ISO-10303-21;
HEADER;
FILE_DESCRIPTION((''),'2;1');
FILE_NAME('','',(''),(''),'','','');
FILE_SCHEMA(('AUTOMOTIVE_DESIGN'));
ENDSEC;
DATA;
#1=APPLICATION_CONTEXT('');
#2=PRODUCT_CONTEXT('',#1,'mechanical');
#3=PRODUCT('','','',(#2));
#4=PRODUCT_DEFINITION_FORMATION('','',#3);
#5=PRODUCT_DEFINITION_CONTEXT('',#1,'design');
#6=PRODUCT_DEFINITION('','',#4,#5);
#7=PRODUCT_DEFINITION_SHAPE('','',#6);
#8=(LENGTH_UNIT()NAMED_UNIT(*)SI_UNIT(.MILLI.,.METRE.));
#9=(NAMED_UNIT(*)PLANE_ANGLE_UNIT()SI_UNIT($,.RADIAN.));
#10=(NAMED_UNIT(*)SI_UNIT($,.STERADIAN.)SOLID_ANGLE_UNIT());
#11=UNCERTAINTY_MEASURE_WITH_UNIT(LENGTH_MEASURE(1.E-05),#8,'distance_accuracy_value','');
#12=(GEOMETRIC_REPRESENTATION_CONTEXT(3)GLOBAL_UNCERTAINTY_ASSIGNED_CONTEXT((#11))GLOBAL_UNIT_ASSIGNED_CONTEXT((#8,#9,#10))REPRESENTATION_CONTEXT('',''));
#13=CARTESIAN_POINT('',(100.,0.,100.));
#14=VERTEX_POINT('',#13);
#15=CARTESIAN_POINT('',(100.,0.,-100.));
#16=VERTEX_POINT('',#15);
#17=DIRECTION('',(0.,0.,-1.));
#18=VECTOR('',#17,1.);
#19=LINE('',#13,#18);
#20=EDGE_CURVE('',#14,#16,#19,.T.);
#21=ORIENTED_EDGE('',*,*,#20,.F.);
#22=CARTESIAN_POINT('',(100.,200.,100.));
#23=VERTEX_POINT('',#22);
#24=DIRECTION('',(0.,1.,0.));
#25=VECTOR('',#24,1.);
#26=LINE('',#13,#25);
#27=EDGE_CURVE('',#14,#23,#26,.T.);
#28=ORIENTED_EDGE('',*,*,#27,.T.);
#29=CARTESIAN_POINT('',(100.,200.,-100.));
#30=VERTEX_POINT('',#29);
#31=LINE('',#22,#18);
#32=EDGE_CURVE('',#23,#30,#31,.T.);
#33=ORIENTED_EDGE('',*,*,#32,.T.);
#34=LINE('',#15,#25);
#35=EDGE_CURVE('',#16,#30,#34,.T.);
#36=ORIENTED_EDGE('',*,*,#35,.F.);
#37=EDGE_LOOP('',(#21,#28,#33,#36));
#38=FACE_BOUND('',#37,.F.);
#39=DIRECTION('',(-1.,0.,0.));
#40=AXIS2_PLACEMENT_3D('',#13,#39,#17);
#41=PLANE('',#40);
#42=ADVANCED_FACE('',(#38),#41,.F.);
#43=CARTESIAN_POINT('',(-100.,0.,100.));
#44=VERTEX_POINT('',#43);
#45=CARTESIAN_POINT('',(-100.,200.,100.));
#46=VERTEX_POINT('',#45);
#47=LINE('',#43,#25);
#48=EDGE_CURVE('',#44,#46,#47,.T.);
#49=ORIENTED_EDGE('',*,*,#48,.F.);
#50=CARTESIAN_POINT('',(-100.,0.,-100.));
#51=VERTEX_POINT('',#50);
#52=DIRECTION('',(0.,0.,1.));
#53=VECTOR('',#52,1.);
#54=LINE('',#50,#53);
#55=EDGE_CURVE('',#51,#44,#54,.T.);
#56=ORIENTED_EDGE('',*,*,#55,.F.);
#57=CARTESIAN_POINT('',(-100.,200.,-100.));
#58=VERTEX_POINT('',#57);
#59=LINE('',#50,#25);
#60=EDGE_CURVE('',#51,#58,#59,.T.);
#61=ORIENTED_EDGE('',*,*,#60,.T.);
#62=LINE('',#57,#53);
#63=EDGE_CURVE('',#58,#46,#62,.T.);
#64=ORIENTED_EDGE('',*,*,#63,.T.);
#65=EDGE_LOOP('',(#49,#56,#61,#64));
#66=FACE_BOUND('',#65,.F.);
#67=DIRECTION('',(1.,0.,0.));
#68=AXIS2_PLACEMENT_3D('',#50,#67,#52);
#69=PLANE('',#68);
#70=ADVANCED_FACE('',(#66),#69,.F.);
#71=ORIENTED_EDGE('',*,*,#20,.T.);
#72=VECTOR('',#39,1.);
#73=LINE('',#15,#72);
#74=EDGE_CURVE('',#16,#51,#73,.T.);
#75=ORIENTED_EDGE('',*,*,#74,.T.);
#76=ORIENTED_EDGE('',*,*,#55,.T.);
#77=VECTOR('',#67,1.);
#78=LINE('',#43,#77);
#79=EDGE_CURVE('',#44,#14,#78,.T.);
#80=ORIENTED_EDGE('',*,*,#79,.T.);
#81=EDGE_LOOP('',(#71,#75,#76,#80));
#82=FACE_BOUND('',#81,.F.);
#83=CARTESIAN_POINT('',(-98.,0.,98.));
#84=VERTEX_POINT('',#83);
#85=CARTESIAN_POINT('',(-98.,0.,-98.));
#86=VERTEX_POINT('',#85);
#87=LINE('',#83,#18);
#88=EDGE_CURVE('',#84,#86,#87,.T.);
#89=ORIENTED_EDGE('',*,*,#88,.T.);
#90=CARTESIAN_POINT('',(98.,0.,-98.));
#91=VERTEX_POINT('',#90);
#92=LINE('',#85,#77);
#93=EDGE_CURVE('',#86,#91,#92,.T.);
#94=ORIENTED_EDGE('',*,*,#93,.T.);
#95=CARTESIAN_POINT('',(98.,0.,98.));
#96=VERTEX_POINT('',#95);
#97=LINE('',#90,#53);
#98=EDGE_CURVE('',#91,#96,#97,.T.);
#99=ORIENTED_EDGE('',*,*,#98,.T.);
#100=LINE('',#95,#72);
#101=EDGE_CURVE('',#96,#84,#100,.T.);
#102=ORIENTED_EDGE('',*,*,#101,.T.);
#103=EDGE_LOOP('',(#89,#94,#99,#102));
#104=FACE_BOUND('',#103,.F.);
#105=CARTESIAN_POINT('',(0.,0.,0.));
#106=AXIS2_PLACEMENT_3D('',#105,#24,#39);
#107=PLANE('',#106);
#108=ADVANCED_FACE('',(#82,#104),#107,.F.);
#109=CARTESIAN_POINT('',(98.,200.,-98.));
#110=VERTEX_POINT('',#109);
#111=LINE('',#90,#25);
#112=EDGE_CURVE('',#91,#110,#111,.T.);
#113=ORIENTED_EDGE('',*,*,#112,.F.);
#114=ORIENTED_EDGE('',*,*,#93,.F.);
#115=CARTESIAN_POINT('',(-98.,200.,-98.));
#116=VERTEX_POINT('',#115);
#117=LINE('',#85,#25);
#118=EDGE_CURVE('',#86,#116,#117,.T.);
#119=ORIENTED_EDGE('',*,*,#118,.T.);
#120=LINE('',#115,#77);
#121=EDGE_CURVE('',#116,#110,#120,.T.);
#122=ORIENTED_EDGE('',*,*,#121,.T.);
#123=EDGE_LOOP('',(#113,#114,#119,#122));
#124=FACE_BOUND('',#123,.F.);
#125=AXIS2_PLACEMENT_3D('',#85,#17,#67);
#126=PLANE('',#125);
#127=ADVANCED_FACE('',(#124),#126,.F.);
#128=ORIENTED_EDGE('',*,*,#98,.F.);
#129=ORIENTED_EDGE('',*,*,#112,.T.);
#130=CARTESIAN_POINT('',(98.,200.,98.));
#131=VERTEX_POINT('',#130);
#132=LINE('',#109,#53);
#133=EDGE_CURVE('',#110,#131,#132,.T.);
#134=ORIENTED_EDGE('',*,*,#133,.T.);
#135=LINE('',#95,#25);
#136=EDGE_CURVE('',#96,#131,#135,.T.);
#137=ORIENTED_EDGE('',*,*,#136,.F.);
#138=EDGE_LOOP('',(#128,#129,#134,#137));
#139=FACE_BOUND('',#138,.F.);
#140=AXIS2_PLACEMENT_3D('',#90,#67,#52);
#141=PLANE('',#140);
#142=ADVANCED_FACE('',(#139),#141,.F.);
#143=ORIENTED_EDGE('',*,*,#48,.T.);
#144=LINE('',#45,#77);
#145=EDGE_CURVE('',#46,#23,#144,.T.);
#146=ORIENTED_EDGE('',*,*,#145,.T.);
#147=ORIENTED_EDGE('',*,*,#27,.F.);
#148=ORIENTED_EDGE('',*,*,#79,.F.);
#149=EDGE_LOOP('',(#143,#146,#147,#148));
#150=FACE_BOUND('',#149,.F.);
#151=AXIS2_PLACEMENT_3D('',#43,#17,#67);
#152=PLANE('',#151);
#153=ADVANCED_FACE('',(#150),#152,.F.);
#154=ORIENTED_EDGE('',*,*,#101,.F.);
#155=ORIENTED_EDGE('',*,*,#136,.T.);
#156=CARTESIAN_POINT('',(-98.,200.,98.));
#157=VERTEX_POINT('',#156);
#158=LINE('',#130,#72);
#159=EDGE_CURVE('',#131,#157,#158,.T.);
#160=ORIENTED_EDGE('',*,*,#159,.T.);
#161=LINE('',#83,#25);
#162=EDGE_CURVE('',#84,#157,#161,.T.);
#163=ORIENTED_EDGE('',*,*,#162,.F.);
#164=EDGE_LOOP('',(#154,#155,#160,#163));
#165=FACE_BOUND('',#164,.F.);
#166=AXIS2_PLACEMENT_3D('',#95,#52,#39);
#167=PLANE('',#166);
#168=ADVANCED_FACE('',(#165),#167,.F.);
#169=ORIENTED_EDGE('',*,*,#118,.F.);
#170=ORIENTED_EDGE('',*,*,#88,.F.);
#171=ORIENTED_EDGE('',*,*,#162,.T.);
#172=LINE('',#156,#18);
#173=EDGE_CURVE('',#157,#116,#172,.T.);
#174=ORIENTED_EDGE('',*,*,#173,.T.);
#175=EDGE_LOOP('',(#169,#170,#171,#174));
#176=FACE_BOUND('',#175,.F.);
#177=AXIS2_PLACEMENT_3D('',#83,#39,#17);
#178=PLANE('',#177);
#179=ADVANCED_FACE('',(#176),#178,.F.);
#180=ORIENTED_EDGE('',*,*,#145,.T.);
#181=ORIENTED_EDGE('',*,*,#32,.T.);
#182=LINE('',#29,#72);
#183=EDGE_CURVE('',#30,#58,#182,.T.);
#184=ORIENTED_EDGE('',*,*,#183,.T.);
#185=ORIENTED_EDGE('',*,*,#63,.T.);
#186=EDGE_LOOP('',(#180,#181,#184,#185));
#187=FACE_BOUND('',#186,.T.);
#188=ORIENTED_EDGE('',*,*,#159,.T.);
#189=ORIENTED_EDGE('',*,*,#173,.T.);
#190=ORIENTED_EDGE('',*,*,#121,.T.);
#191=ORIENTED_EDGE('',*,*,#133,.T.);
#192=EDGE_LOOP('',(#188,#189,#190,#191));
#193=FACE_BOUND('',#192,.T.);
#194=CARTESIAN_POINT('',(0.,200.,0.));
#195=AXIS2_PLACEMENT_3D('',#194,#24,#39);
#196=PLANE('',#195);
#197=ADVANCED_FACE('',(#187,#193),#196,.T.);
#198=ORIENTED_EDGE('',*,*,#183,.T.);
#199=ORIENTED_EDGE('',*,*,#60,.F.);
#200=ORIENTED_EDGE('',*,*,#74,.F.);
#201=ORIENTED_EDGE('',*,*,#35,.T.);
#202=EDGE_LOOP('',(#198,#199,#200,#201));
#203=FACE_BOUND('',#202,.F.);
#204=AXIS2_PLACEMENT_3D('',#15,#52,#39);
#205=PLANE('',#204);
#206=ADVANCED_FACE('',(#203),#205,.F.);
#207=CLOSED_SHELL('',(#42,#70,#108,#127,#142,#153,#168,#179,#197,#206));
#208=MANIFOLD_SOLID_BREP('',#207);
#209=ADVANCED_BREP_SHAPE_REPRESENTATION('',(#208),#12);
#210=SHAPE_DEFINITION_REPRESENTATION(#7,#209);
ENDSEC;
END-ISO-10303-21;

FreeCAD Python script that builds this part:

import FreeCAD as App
import Part
import Sketcher

V = App.Vector

doc = App.newDocument("Part")
params = doc.addObject("Spreadsheet::Sheet", "Params")
for row, (alias, value) in enumerate([
    ("sketch1_width", "200 mm"),
    ("pad1_length", "200 mm"),
], start=1):
    params.set(f"A{row}", alias)
    params.set(f"B{row}", "=" + value)
    params.setAlias(f"B{row}", alias)

body = doc.addObject("PartDesign::Body", "Body")

# Sketch on XZ plane
sketch1 = body.newObject("Sketcher::SketchObject", "Sketch")
sketch1.AttachmentSupport = (doc.getObject("XZ_Plane"), [""])
sketch1.MapMode = "FlatFace"
sketch1.addGeometry(Part.LineSegment(V(100, 100, 0), V(100, -100, 0)), False)
sketch1.addGeometry(Part.LineSegment(V(100, -100, 0), V(-100, -100, 0)), False)
sketch1.addGeometry(Part.LineSegment(V(-100, -100, 0), V(-100, 100, 0)), False)
sketch1.addGeometry(Part.LineSegment(V(-100, 100, 0), V(100, 100, 0)), False)
sketch1.addGeometry(Part.LineSegment(V(98, -98, 0), V(98, 98, 0)), False)
sketch1.addGeometry(Part.LineSegment(V(98, 98, 0), V(-98, 98, 0)), False)
sketch1.addGeometry(Part.LineSegment(V(-98, 98, 0), V(-98, -98, 0)), False)
sketch1.addGeometry(Part.LineSegment(V(-98, -98, 0), V(98, -98, 0)), False)
sketch1.addConstraint(Sketcher.Constraint("Coincident", 0, 2, 1, 1))
sketch1.addConstraint(Sketcher.Constraint("Coincident", 1, 2, 2, 1))
sketch1.addConstraint(Sketcher.Constraint("Coincident", 2, 2, 3, 1))
sketch1.addConstraint(Sketcher.Constraint("Coincident", 3, 2, 0, 1))
sketch1.addConstraint(Sketcher.Constraint("Coincident", 4, 2, 5, 1))
sketch1.addConstraint(Sketcher.Constraint("Coincident", 5, 2, 6, 1))
sketch1.addConstraint(Sketcher.Constraint("Coincident", 6, 2, 7, 1))
sketch1.addConstraint(Sketcher.Constraint("Coincident", 7, 2, 4, 1))
sketch1.addConstraint(Sketcher.Constraint("Vertical", 0))
sketch1.addConstraint(Sketcher.Constraint("Horizontal", 1))
sketch1.addConstraint(Sketcher.Constraint("Vertical", 2))
sketch1.addConstraint(Sketcher.Constraint("Horizontal", 3))
sketch1.addConstraint(Sketcher.Constraint("Vertical", 4))
sketch1.addConstraint(Sketcher.Constraint("Horizontal", 5))
sketch1.addConstraint(Sketcher.Constraint("Vertical", 6))
sketch1.addConstraint(Sketcher.Constraint("Horizontal", 7))
sketch1.addConstraint(Sketcher.Constraint("Symmetric", 0, 2, 2, 2, -1, 1))
sketch1.addConstraint(Sketcher.Constraint("Symmetric", 4, 2, 6, 2, -1, 1))
sketch1.addConstraint(Sketcher.Constraint("Equal", 3, 0))
sketch1.addConstraint(Sketcher.Constraint("Equal", 7, 4))
sketch1.addConstraint(Sketcher.Constraint("DistanceX", 1, 2, 1, 1, 200.0))
sketch1.addConstraint(Sketcher.Constraint("DistanceX", 4, 2, 3, 2, 2.0))
sketch1.setExpression("Constraints[20]", "Params.sketch1_width")
pad1 = body.newObject("PartDesign::Pad", "Pad")
pad1.Profile = sketch1
pad1.setExpression("Length", "Params.pad1_length")
pad1.Reversed = True

doc.recompute()
